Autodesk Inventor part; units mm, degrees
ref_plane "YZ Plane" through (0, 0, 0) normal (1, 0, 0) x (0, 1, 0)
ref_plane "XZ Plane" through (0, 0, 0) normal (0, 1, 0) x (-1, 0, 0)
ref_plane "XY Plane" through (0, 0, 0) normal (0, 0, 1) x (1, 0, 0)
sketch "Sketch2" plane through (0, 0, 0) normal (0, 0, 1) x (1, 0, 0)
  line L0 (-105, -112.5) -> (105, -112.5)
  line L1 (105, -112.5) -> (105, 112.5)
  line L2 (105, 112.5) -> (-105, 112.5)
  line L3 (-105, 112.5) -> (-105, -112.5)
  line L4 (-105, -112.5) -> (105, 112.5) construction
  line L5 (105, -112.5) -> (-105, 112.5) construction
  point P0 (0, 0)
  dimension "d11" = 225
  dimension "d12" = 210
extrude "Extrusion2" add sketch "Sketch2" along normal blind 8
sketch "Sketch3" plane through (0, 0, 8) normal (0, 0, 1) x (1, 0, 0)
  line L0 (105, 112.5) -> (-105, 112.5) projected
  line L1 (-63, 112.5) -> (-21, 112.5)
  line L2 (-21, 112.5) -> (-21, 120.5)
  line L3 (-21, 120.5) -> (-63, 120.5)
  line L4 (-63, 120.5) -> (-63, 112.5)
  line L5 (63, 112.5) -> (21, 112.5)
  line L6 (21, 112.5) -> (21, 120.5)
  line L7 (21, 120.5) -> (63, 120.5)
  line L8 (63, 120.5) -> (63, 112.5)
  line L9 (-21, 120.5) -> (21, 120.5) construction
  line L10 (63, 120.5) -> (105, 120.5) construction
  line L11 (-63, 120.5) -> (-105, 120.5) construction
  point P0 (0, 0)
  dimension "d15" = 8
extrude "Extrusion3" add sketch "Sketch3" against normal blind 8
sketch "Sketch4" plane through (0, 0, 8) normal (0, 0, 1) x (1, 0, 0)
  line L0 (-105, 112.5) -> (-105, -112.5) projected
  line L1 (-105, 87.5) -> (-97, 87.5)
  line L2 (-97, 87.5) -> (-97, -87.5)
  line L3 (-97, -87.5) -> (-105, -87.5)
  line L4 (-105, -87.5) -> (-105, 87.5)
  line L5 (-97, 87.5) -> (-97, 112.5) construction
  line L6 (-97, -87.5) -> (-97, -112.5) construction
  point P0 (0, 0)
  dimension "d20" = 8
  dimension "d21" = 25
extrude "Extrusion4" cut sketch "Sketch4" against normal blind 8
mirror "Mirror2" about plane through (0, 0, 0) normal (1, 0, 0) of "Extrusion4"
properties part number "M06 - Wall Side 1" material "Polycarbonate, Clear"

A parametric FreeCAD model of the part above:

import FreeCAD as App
import Part
import Sketcher
from FreeCAD import Vector
Q = App.Units.Quantity

doc = App.newDocument("Part")
params = doc.addObject("Spreadsheet::Sheet", "Params")
for row, (alias, value) in enumerate([
    ("sketch1_width", "210 mm"),
    ("sketch1_height", "225 mm"),
    ("pad1_length", "8 mm"),
    ("sketch2_height", "8 mm"),
    ("sketch2_width", "42 mm"),
    ("pad2_length", "8 mm"),
    ("sketch3_width", "8 mm"),
    ("sketch3_height", "175 mm"),
    ("pocket1_length", "8 mm"),
], start=1):
    params.set(f"A{row}", alias)
    params.set(f"B{row}", "=" + value)
    params.setAlias(f"B{row}", alias)

body = doc.addObject("PartDesign::Body", "Body")

sketch1 = doc.addObject("Sketcher::SketchObject", "Sketch")
body.addObject(sketch1)
sketch1.AttachmentSupport = (doc.XY_Plane, [""])
sketch1.MapMode = "FlatFace"
sketch1.addGeometry(Part.LineSegment(Vector(-105, 112, 0), Vector(-105, -112, 0)), False)
sketch1.addGeometry(Part.LineSegment(Vector(-105, -112, 0), Vector(105, -112, 0)), False)
sketch1.addGeometry(Part.LineSegment(Vector(105, -112, 0), Vector(105, 112, 0)), False)
sketch1.addGeometry(Part.LineSegment(Vector(105, 112, 0), Vector(-105, 112, 0)), False)
sketch1.addConstraint(Sketcher.Constraint("Coincident", 0, 2, 1, 1))
sketch1.addConstraint(Sketcher.Constraint("Coincident", 1, 2, 2, 1))
sketch1.addConstraint(Sketcher.Constraint("Coincident", 2, 2, 3, 1))
sketch1.addConstraint(Sketcher.Constraint("Coincident", 3, 2, 0, 1))
sketch1.addConstraint(Sketcher.Constraint("Vertical", 0))
sketch1.addConstraint(Sketcher.Constraint("Horizontal", 1))
sketch1.addConstraint(Sketcher.Constraint("Vertical", 2))
sketch1.addConstraint(Sketcher.Constraint("Horizontal", 3))
sketch1.addConstraint(Sketcher.Constraint("Symmetric", 0, 2, 2, 2, -1, 1))
sketch1.addConstraint(Sketcher.Constraint("DistanceX", 1, 1, 1, 2, Q("210 mm")))
sketch1.addConstraint(Sketcher.Constraint("DistanceY", 0, 2, 0, 1, Q("225 mm")))
sketch1.setExpression("Constraints[9]", "Params.sketch1_width")
sketch1.setExpression("Constraints[10]", "Params.sketch1_height")
pad1 = doc.addObject("PartDesign::Pad", "Pad")
body.addObject(pad1)
pad1.Profile = sketch1
pad1.setExpression("Length", "Params.pad1_length")

sketch2 = doc.addObject("Sketcher::SketchObject", "Sketch001")
body.addObject(sketch2)
sketch2.AttachmentSupport = (doc.XY_Plane, [""])
sketch2.MapMode = "FlatFace"
sketch2.AttachmentOffset = App.Placement(Vector(0, 0, 8), App.Rotation())
sketch2.addGeometry(Part.LineSegment(Vector(-63, 112, 0), Vector(-21, 112, 0)), False)
sketch2.addGeometry(Part.LineSegment(Vector(-21, 112, 0), Vector(-21, 120, 0)), False)
sketch2.addGeometry(Part.LineSegment(Vector(-21, 120, 0), Vector(-63, 120, 0)), False)
sketch2.addGeometry(Part.LineSegment(Vector(-63, 120, 0), Vector(-63, 112, 0)), False)
sketch2.addGeometry(Part.LineSegment(Vector(21, 112, 0), Vector(63, 112, 0)), False)
sketch2.addGeometry(Part.LineSegment(Vector(63, 112, 0), Vector(63, 120, 0)), False)
sketch2.addGeometry(Part.LineSegment(Vector(63, 120, 0), Vector(21, 120, 0)), False)
sketch2.addGeometry(Part.LineSegment(Vector(21, 120, 0), Vector(21, 112, 0)), False)
sketch2.addConstraint(Sketcher.Constraint("Coincident", 0, 2, 1, 1))
sketch2.addConstraint(Sketcher.Constraint("Coincident", 1, 2, 2, 1))
sketch2.addConstraint(Sketcher.Constraint("Coincident", 2, 2, 3, 1))
sketch2.addConstraint(Sketcher.Constraint("Coincident", 3, 2, 0, 1))
sketch2.addConstraint(Sketcher.Constraint("Coincident", 4, 2, 5, 1))
sketch2.addConstraint(Sketcher.Constraint("Coincident", 5, 2, 6, 1))
sketch2.addConstraint(Sketcher.Constraint("Coincident", 6, 2, 7, 1))
sketch2.addConstraint(Sketcher.Constraint("Coincident", 7, 2, 4, 1))
sketch2.addConstraint(Sketcher.Constraint("Horizontal", 0))
sketch2.addConstraint(Sketcher.Constraint("Vertical", 1))
sketch2.addConstraint(Sketcher.Constraint("Horizontal", 2))
sketch2.addConstraint(Sketcher.Constraint("Vertical", 3))
sketch2.addConstraint(Sketcher.Constraint("Horizontal", 4))
sketch2.addConstraint(Sketcher.Constraint("Vertical", 5))
sketch2.addConstraint(Sketcher.Constraint("Horizontal", 6))
sketch2.addConstraint(Sketcher.Constraint("Vertical", 7))
sketch2.addConstraint(Sketcher.Constraint("Symmetric", 3, 2, 4, 2, -2))
sketch2.addConstraint(Sketcher.Constraint("Symmetric", 1, 2, 6, 2, -2))
sketch2.addConstraint(Sketcher.Constraint("DistanceY", 1, 1, 1, 2, Q("8 mm")))
sketch2.addConstraint(Sketcher.Constraint("DistanceX", 0, 1, 0, 2, Q("42 mm")))
sketch2.addConstraint(Sketcher.Constraint("DistanceX", 0, 2, -1, 1, Q("21 mm")))
sketch2.addConstraint(Sketcher.Constraint("DistanceY", -1, 1, 0, 2, Q("112.5 mm")))
sketch2.setExpression("Constraints[18]", "Params.sketch2_height")
sketch2.setExpression("Constraints[19]", "Params.sketch2_width")
pad2 = doc.addObject("PartDesign::Pad", "Pad001")
body.addObject(pad2)
pad2.Profile = sketch2
pad2.setExpression("Length", "Params.pad2_length")
pad2.Reversed = True

sketch3 = doc.addObject("Sketcher::SketchObject", "Sketch002")
body.addObject(sketch3)
sketch3.AttachmentSupport = (doc.XY_Plane, [""])
sketch3.MapMode = "FlatFace"
sketch3.AttachmentOffset = App.Placement(Vector(0, 0, 8), App.Rotation())
sketch3.addGeometry(Part.LineSegment(Vector(-97, 88, 0), Vector(-105, 88, 0)), False)
sketch3.addGeometry(Part.LineSegment(Vector(-105, 88, 0), Vector(-105, -88, 0)), False)
sketch3.addGeometry(Part.LineSegment(Vector(-105, -88, 0), Vector(-97, -88, 0)), False)
sketch3.addGeometry(Part.LineSegment(Vector(-97, -88, 0), Vector(-97, 88, 0)), False)
sketch3.addConstraint(Sketcher.Constraint("Coincident", 0, 2, 1, 1))
sketch3.addConstraint(Sketcher.Constraint("Coincident", 1, 2, 2, 1))
sketch3.addConstraint(Sketcher.Constraint("Coincident", 2, 2, 3, 1))
sketch3.addConstraint(Sketcher.Constraint("Coincident", 3, 2, 0, 1))
sketch3.addConstraint(Sketcher.Constraint("Horizontal", 0))
sketch3.addConstraint(Sketcher.Constraint("Vertical", 1))
sketch3.addConstraint(Sketcher.Constraint("Horizontal", 2))
sketch3.addConstraint(Sketcher.Constraint("Vertical", 3))
sketch3.addConstraint(Sketcher.Constraint("DistanceX", 0, 2, 0, 1, Q("8 mm")))
sketch3.addConstraint(Sketcher.Constraint("DistanceY", 1, 2, 1, 1, Q("175 mm")))
sketch3.addConstraint(Sketcher.Constraint("DistanceX", 0, 2, -1, 1, Q("105 mm")))
sketch3.addConstraint(Sketcher.Constraint("DistanceY", -1, 1, 0, 2, Q("87.5 mm")))
sketch3.setExpression("Constraints[8]", "Params.sketch3_width")
sketch3.setExpression("Constraints[9]", "Params.sketch3_height")
pocket1 = doc.addObject("PartDesign::Pocket", "Pocket")
body.addObject(pocket1)
pocket1.Profile = sketch3
pocket1.setExpression("Length", "Params.pocket1_length")
doc.recompute()

mirrored = doc.addObject("PartDesign::Mirrored", "Mirrored")
body.addObject(mirrored)
mirrored.Originals = [pocket1]
mirrored.MirrorPlane = (doc.YZ_Plane, [""])
body.Tip = mirrored

doc.recompute()
